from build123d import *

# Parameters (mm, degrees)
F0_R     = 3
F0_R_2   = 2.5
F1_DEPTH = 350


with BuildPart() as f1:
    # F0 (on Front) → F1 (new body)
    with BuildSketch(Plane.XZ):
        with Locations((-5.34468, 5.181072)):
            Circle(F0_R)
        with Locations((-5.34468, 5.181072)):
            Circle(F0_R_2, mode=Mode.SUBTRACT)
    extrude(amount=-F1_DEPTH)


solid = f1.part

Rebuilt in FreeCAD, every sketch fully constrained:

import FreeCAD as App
import Part
import Sketcher
Q = App.Units.Quantity

doc = App.newDocument("Part")
params = doc.addObject("Spreadsheet::Sheet", "Params")
for row, (alias, value) in enumerate([
    ("sketch1_diameter", "6 mm"),
    ("sketch1_diameter2", "5 mm"),
    ("pad1_length", "350 mm"),
], start=1):
    params.set(f"A{row}", alias)
    params.set(f"B{row}", "=" + value)
    params.setAlias(f"B{row}", alias)

body = doc.addObject("PartDesign::Body", "Body")

# Sketch on XZ plane
sketch1 = doc.addObject("Sketcher::SketchObject", "Sketch")
body.addObject(sketch1)
sketch1.AttachmentSupport = (doc.XZ_Plane, [""])
sketch1.MapMode = "FlatFace"
sketch1.addGeometry(Part.Circle(App.Vector(-5.3, 5.2, 0), App.Vector(0, 0, 1), 3), False)
sketch1.addGeometry(Part.Circle(App.Vector(-5.3, 5.2, 0), App.Vector(0, 0, 1), 2.5), False)
sketch1.addConstraint(Sketcher.Constraint("Coincident", 1, 3, 0, 3))
sketch1.addConstraint(Sketcher.Constraint("Diameter", 0, Q("6 mm")))
sketch1.addConstraint(Sketcher.Constraint("Diameter", 1, Q("5 mm")))
sketch1.addConstraint(Sketcher.Constraint("DistanceX", 0, 3, -1, 1, Q("5.34468 mm")))
sketch1.addConstraint(Sketcher.Constraint("DistanceY", -1, 1, 0, 3, Q("5.181072 mm")))
sketch1.setExpression("Constraints[1]", "Params.sketch1_diameter")
sketch1.setExpression("Constraints[2]", "Params.sketch1_diameter2")
pad1 = doc.addObject("PartDesign::Pad", "Pad")
body.addObject(pad1)
pad1.Profile = sketch1
pad1.setExpression("Length", "Params.pad1_length")
pad1.Reversed = True

doc.recompute()
